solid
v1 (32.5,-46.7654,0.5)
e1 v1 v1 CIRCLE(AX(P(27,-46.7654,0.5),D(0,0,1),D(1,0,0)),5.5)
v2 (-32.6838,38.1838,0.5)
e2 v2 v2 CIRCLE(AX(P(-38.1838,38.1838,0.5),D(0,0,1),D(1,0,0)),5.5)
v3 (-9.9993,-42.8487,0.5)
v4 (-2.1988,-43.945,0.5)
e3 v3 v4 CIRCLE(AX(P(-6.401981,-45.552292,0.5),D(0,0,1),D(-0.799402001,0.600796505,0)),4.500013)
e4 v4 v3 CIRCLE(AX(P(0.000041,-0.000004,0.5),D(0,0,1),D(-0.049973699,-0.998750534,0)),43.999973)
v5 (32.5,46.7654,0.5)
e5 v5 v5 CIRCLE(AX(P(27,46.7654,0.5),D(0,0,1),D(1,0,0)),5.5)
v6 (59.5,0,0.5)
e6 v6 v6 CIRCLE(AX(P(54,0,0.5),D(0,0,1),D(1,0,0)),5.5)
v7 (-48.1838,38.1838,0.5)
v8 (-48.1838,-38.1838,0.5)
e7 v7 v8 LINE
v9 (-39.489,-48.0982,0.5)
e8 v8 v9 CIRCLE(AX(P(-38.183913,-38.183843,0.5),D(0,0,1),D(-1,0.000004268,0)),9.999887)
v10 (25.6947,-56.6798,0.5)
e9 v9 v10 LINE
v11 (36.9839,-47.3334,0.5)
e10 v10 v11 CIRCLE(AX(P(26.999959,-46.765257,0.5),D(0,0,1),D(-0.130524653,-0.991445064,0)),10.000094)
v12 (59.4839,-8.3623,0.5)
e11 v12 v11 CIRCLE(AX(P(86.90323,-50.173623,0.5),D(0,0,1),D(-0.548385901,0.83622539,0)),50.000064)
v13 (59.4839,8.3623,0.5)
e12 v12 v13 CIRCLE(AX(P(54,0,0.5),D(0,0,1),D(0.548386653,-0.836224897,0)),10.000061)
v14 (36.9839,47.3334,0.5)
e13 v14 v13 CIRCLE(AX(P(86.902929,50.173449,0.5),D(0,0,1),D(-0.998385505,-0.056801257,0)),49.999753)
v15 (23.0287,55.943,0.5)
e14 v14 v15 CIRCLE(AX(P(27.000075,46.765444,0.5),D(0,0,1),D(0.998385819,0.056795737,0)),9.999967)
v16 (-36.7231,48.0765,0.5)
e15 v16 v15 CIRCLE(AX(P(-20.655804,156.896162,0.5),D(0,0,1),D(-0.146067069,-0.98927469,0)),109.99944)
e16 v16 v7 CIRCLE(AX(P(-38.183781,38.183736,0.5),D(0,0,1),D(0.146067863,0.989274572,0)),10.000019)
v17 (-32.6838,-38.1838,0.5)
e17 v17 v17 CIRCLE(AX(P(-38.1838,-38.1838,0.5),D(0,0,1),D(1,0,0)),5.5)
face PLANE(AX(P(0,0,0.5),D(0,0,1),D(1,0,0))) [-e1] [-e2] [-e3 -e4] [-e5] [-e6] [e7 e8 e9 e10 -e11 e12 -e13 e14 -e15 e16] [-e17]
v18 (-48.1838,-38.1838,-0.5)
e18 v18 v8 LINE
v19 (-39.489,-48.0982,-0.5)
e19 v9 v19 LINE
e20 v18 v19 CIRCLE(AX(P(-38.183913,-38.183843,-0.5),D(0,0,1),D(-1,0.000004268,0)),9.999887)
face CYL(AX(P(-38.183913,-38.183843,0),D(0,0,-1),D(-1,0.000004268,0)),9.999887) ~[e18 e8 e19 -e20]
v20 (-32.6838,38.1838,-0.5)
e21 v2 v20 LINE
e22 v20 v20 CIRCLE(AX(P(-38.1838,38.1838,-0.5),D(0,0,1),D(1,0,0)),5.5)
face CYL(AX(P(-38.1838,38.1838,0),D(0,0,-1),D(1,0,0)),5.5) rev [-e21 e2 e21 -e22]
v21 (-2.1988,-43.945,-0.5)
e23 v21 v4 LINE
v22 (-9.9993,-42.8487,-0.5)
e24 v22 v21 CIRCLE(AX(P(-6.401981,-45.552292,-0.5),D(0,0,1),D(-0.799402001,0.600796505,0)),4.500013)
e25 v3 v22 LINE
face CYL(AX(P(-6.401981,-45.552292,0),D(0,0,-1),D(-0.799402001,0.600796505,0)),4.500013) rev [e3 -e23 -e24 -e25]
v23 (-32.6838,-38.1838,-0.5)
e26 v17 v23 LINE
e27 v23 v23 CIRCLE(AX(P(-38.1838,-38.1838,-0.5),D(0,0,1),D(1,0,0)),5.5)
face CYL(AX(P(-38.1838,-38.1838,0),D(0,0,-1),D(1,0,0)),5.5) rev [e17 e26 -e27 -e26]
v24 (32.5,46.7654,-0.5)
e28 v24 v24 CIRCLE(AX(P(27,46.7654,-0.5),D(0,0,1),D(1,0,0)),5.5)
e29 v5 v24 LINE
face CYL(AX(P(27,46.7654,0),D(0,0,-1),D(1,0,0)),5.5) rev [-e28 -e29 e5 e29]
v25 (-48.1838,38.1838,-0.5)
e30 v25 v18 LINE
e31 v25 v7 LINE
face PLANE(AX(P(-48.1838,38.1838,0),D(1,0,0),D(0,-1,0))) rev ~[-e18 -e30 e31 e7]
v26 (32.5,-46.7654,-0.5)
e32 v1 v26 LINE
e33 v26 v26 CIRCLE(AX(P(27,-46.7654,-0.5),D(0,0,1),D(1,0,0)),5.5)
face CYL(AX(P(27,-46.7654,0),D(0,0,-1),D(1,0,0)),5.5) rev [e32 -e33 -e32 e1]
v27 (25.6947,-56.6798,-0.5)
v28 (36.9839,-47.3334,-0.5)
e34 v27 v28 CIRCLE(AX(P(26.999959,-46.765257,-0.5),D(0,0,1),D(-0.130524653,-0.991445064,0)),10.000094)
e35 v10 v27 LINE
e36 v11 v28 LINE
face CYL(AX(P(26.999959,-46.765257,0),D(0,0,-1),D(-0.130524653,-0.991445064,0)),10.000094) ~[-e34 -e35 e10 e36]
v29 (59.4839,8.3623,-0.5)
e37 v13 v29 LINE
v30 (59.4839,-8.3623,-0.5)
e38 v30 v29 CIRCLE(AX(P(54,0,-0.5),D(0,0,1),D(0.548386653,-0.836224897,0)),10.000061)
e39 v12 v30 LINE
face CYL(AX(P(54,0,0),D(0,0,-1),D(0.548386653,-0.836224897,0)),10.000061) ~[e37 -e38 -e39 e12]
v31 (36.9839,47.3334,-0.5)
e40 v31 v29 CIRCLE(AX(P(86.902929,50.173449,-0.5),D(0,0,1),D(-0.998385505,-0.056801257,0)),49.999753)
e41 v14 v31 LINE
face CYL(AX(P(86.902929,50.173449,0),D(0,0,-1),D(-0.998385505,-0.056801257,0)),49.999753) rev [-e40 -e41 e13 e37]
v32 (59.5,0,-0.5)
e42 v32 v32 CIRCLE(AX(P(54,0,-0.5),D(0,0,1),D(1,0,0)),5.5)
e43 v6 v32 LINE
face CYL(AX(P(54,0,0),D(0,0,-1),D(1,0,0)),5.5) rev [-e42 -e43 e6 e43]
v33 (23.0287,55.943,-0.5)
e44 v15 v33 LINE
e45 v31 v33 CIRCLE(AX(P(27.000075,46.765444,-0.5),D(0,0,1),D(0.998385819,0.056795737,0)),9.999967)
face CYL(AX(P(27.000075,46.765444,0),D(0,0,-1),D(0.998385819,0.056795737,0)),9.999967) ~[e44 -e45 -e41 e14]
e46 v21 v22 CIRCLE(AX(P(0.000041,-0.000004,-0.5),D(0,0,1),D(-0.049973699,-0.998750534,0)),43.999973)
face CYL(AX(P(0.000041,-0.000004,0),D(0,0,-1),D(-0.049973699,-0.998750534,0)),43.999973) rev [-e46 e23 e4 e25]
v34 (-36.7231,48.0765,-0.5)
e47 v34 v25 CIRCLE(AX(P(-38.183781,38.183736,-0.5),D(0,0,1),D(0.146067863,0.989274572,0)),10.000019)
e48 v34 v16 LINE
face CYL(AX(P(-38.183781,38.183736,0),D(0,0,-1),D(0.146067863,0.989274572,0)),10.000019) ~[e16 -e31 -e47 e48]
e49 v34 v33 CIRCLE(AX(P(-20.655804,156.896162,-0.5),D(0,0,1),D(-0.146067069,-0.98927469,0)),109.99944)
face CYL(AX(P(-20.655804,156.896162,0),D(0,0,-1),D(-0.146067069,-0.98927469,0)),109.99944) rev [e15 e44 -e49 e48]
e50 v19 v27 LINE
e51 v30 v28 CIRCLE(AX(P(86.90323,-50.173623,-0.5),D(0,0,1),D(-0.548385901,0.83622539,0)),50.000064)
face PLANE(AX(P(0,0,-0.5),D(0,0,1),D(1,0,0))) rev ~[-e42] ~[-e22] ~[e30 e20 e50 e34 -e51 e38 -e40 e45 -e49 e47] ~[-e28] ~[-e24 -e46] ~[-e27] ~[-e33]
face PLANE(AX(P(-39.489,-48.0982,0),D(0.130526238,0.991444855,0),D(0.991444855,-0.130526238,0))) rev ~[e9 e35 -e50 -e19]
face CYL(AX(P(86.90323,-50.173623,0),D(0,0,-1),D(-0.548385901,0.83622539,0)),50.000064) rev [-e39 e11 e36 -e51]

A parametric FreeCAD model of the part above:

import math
import FreeCAD as App
import Part
import Sketcher
from FreeCAD import Vector
Q = App.Units.Quantity

doc = App.newDocument("Part")
body = doc.addObject("PartDesign::Body", "Body")

sketch1 = doc.addObject("Sketcher::SketchObject", "Sketch")
body.addObject(sketch1)
sketch1.AttachmentSupport = (doc.XY_Plane, [""])
sketch1.MapMode = "FlatFace"
sketch1.addGeometry(Part.ArcOfCircle(Part.Circle(Vector(-20.7, 156.9, 0), Vector(0, 0, 1), 110), math.radians(-98), math.radians(-67)), False)
sketch1.addGeometry(Part.ArcOfCircle(Part.Circle(Vector(-38.2, 38.2, 0), Vector(0, 0, 1), 10), math.radians(82), math.radians(180)), False)
sketch1.addGeometry(Part.LineSegment(Vector(-48.2, 38.2, 0), Vector(-48.2, -38.2, 0)), False)
sketch1.addGeometry(Part.ArcOfCircle(Part.Circle(Vector(-38.2, -38.2, 0), Vector(0, 0, 1), 10), math.radians(180), math.radians(263)), False)
sketch1.addGeometry(Part.LineSegment(Vector(-39.5, -48.1, 0), Vector(25.7, -56.7, 0)), False)
sketch1.addGeometry(Part.ArcOfCircle(Part.Circle(Vector(27, -46.8, 0), Vector(0, 0, 1), 10), math.radians(-98), math.radians(-3)), False)
sketch1.addGeometry(Part.ArcOfCircle(Part.Circle(Vector(86.9, -50.2, 0), Vector(0, 0, 1), 50), math.radians(123), math.radians(177)), False)
sketch1.addGeometry(Part.ArcOfCircle(Part.Circle(Vector(54, 0, 0), Vector(0, 0, 1), 10), math.radians(-57), math.radians(57)), False)
sketch1.addGeometry(Part.ArcOfCircle(Part.Circle(Vector(86.9, 50.2, 0), Vector(0, 0, 1), 50), math.radians(-177), math.radians(-123)), False)
sketch1.addGeometry(Part.ArcOfCircle(Part.Circle(Vector(27, 46.8, 0), Vector(0, 0, 1), 10), math.radians(3), math.radians(113)), False)
sketch1.addGeometry(Part.Circle(Vector(-38.2, -38.2, 0), Vector(0, 0, 1), 5.5), False)
sketch1.addGeometry(Part.ArcOfCircle(Part.Circle(Vector(0, 0, 0), Vector(0, 0, 1), 44), math.radians(-93), math.radians(257)), False)
sketch1.addGeometry(Part.ArcOfCircle(Part.Circle(Vector(-6.4, -45.6, 0), Vector(0, 0, 1), 4.5), math.radians(143), math.radians(381)), False)
sketch1.addGeometry(Part.Circle(Vector(27, -46.8, 0), Vector(0, 0, 1), 5.5), False)
sketch1.addGeometry(Part.Circle(Vector(54, 0, 0), Vector(0, 0, 1), 5.5), False)
sketch1.addGeometry(Part.Circle(Vector(-38.2, 38.2, 0), Vector(0, 0, 1), 5.5), False)
sketch1.addGeometry(Part.Circle(Vector(27, 46.8, 0), Vector(0, 0, 1), 5.5), False)
sketch1.addConstraint(Sketcher.Constraint("Tangent", 0, 1, 1, 1))
sketch1.addConstraint(Sketcher.Constraint("Tangent", 1, 2, 2, 1))
sketch1.addConstraint(Sketcher.Constraint("Tangent", 2, 2, 3, 1))
sketch1.addConstraint(Sketcher.Constraint("Tangent", 3, 2, 4, 1))
sketch1.addConstraint(Sketcher.Constraint("Tangent", 4, 2, 5, 1))
sketch1.addConstraint(Sketcher.Constraint("Tangent", 5, 2, 6, 2))
sketch1.addConstraint(Sketcher.Constraint("Tangent", 6, 1, 7, 1))
sketch1.addConstraint(Sketcher.Constraint("Tangent", 7, 2, 8, 2))
sketch1.addConstraint(Sketcher.Constraint("Tangent", 8, 1, 9, 1))
sketch1.addConstraint(Sketcher.Constraint("Tangent", 9, 2, 0, 2))
sketch1.addConstraint(Sketcher.Constraint("Coincident", 11, 1, 12, 2))
sketch1.addConstraint(Sketcher.Constraint("Coincident", 12, 1, 11, 2))
sketch1.addConstraint(Sketcher.Constraint("Vertical", 2))
sketch1.addConstraint(Sketcher.Constraint("Coincident", 11, 3, -1, 1))
sketch1.addConstraint(Sketcher.Constraint("Coincident", 10, 3, 3, 3))
sketch1.addConstraint(Sketcher.Constraint("Coincident", 13, 3, 5, 3))
sketch1.addConstraint(Sketcher.Constraint("Coincident", 14, 3, 7, 3))
sketch1.addConstraint(Sketcher.Constraint("Coincident", 15, 3, 1, 3))
sketch1.addConstraint(Sketcher.Constraint("Coincident", 16, 3, 9, 3))
sketch1.addConstraint(Sketcher.Constraint("Equal", 1, 3))
sketch1.addConstraint(Sketcher.Constraint("Equal", 3, 5))
sketch1.addConstraint(Sketcher.Constraint("Equal", 5, 7))
sketch1.addConstraint(Sketcher.Constraint("Equal", 6, 8))
sketch1.addConstraint(Sketcher.Constraint("Equal", 7, 9))
sketch1.addConstraint(Sketcher.Constraint("Equal", 10, 13))
sketch1.addConstraint(Sketcher.Constraint("Equal", 13, 14))
sketch1.addConstraint(Sketcher.Constraint("Equal", 14, 15))
sketch1.addConstraint(Sketcher.Constraint("Equal", 15, 16))
sketch1.addConstraint(Sketcher.Constraint("Symmetric", 6, 3, 8, 3, -1))
sketch1.addConstraint(Sketcher.Constraint("Vertical", 5, 3, 9, 3))
sketch1.addConstraint(Sketcher.Constraint("Diameter", 10, 11.0))
sketch1.addConstraint(Sketcher.Constraint("Radius", 0, 110.0))
sketch1.addConstraint(Sketcher.Constraint("Radius", 1, 10.0))
sketch1.addConstraint(Sketcher.Constraint("Radius", 6, 50.0))
sketch1.addConstraint(Sketcher.Constraint("Radius", 11, 44.0))
sketch1.addConstraint(Sketcher.Constraint("Radius", 12, 4.5))
sketch1.addConstraint(Sketcher.Constraint("DistanceX", -1, 1, 5, 3, 27.0))
sketch1.addConstraint(Sketcher.Constraint("DistanceX", -1, 1, 7, 3, 54.0))
sketch1.addConstraint(Sketcher.Constraint("Angle", 4, Q("-7.5 deg")))
sketch1.addConstraint(Sketcher.Constraint("DistanceY", 6, 3, 5, 2, 2.84))
sketch1.addConstraint(Sketcher.Constraint("DistanceY", 2, 2, 2, 1, 76.3676))
sketch1.addConstraint(Sketcher.Constraint("DistanceX", 12, 3, -1, 1, 6.402))
sketch1.addConstraint(Sketcher.Constraint("DistanceX", 0, 1, -1, 1, 36.723))
sketch1.addConstraint(Sketcher.Constraint("DistanceY", 11, 1, -1, 1, 43.945))
pad1 = doc.addObject("PartDesign::Pad", "Pad")
body.addObject(pad1)
pad1.Profile = sketch1
pad1.Length = 1
pad1.Midplane = True

doc.recompute()
